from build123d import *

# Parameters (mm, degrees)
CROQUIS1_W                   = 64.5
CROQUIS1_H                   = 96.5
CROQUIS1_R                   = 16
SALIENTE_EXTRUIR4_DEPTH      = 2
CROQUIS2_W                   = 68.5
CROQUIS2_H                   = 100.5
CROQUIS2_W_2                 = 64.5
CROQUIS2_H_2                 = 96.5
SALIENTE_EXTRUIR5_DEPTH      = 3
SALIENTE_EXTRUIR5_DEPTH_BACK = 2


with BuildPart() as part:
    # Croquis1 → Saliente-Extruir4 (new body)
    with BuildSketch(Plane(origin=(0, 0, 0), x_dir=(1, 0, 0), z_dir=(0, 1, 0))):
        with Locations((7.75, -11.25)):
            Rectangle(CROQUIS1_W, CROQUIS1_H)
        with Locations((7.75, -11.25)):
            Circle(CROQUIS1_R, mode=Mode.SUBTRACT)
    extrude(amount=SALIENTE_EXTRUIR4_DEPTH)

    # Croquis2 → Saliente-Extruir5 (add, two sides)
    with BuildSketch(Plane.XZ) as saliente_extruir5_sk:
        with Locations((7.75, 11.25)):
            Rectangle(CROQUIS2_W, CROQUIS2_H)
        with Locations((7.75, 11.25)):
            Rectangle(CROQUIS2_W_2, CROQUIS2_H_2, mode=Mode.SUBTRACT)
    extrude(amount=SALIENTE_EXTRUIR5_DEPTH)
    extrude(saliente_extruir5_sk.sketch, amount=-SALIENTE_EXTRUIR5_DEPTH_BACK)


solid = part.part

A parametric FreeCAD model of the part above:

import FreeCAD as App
import Part
import Sketcher
from FreeCAD import Vector

doc = App.newDocument("Part")
body = doc.addObject("PartDesign::Body", "Body")

sketch1 = doc.addObject("Sketcher::SketchObject", "Sketch")
body.addObject(sketch1)
sketch1.AttachmentSupport = (doc.XZ_Plane, [""])
sketch1.MapMode = "FlatFace"
sketch1.addGeometry([
    Part.LineSegment(Vector(-24.5, -37, 0), Vector(-24.5, 59.5, 0)),
    Part.LineSegment(Vector(-24.5, 59.5, 0), Vector(40, 59.5, 0)),
    Part.LineSegment(Vector(40, 59.5, 0), Vector(40, -37, 0)),
    Part.LineSegment(Vector(40, -37, 0), Vector(-24.5, -37, 0)),
    Part.Circle(Vector(7.75, 11.25, 0), Vector(0, 0, 1), 16),
], False)
sketch1.addConstraint([
    Sketcher.Constraint("Coincident", 0, 2, 1, 1),
    Sketcher.Constraint("Coincident", 1, 2, 2, 1),
    Sketcher.Constraint("Coincident", 2, 2, 3, 1),
    Sketcher.Constraint("Coincident", 3, 2, 0, 1),
    Sketcher.Constraint("Vertical", 0),
    Sketcher.Constraint("Horizontal", 1),
    Sketcher.Constraint("Vertical", 2),
    Sketcher.Constraint("Horizontal", 3),
    Sketcher.Constraint("Diameter", 4, 32.0),
    Sketcher.Constraint("DistanceX", 1, 1, 1, 2, 64.5),
    Sketcher.Constraint("DistanceY", 0, 1, 0, 2, 96.5),
    Sketcher.Constraint("DistanceX", -1, 1, 1, 2, 40.0),
    Sketcher.Constraint("DistanceY", 2, 2, -1, 1, 37.0),
    Sketcher.Constraint("DistanceX", -1, 1, 4, 3, 7.75),
    Sketcher.Constraint("DistanceY", -1, 1, 4, 3, 11.25),
])
pad1 = doc.addObject("PartDesign::Pad", "Pad")
body.addObject(pad1)
pad1.Profile = sketch1
pad1.Length = 2
pad1.Reversed = True

sketch2 = doc.addObject("Sketcher::SketchObject", "Sketch001")
body.addObject(sketch2)
sketch2.AttachmentSupport = (doc.XZ_Plane, [""])
sketch2.MapMode = "FlatFace"
sketch2.addGeometry([
    Part.LineSegment(Vector(-26.5, 61.5, 0), Vector(-26.5, -39, 0)),
    Part.LineSegment(Vector(-26.5, -39, 0), Vector(42, -39, 0)),
    Part.LineSegment(Vector(42, -39, 0), Vector(42, 61.5, 0)),
    Part.LineSegment(Vector(42, 61.5, 0), Vector(-26.5, 61.5, 0)),
    Part.LineSegment(Vector(40, -37, 0), Vector(-24.5, -37, 0)),
    Part.LineSegment(Vector(-24.5, -37, 0), Vector(-24.5, 59.5, 0)),
    Part.LineSegment(Vector(-24.5, 59.5, 0), Vector(40, 59.5, 0)),
    Part.LineSegment(Vector(40, 59.5, 0), Vector(40, -37, 0)),
], False)
sketch2.addConstraint([
    Sketcher.Constraint("Coincident", 0, 2, 1, 1),
    Sketcher.Constraint("Coincident", 1, 2, 2, 1),
    Sketcher.Constraint("Coincident", 2, 2, 3, 1),
    Sketcher.Constraint("Coincident", 3, 2, 0, 1),
    Sketcher.Constraint("Coincident", 4, 2, 5, 1),
    Sketcher.Constraint("Coincident", 5, 2, 6, 1),
    Sketcher.Constraint("Coincident", 6, 2, 7, 1),
    Sketcher.Constraint("Coincident", 7, 2, 4, 1),
    Sketcher.Constraint("Vertical", 0),
    Sketcher.Constraint("Horizontal", 1),
    Sketcher.Constraint("Vertical", 2),
    Sketcher.Constraint("Horizontal", 3),
    Sketcher.Constraint("Horizontal", 4),
    Sketcher.Constraint("Vertical", 5),
    Sketcher.Constraint("Horizontal", 6),
    Sketcher.Constraint("Vertical", 7),
    Sketcher.Constraint("DistanceX", 1, 1, 1, 2, 68.5),
    Sketcher.Constraint("DistanceX", 4, 2, 4, 1, 64.5),
    Sketcher.Constraint("DistanceY", 0, 2, 0, 1, 100.5),
    Sketcher.Constraint("DistanceY", 5, 1, 5, 2, 96.5),
    Sketcher.Constraint("DistanceY", 0, 2, -1, 1, 39.0),
    Sketcher.Constraint("DistanceX", -1, 1, 1, 2, 42.0),
    Sketcher.Constraint("DistanceY", 4, 2, -1, 1, 37.0),
    Sketcher.Constraint("DistanceX", -1, 1, 6, 2, 40.0),
])
pad2 = doc.addObject("PartDesign::Pad", "Pad001")
body.addObject(pad2)
pad2.Profile = sketch2
pad2.Type = "TwoLengths"
pad2.Length = 3
pad2.Length2 = 2

doc.recompute()
